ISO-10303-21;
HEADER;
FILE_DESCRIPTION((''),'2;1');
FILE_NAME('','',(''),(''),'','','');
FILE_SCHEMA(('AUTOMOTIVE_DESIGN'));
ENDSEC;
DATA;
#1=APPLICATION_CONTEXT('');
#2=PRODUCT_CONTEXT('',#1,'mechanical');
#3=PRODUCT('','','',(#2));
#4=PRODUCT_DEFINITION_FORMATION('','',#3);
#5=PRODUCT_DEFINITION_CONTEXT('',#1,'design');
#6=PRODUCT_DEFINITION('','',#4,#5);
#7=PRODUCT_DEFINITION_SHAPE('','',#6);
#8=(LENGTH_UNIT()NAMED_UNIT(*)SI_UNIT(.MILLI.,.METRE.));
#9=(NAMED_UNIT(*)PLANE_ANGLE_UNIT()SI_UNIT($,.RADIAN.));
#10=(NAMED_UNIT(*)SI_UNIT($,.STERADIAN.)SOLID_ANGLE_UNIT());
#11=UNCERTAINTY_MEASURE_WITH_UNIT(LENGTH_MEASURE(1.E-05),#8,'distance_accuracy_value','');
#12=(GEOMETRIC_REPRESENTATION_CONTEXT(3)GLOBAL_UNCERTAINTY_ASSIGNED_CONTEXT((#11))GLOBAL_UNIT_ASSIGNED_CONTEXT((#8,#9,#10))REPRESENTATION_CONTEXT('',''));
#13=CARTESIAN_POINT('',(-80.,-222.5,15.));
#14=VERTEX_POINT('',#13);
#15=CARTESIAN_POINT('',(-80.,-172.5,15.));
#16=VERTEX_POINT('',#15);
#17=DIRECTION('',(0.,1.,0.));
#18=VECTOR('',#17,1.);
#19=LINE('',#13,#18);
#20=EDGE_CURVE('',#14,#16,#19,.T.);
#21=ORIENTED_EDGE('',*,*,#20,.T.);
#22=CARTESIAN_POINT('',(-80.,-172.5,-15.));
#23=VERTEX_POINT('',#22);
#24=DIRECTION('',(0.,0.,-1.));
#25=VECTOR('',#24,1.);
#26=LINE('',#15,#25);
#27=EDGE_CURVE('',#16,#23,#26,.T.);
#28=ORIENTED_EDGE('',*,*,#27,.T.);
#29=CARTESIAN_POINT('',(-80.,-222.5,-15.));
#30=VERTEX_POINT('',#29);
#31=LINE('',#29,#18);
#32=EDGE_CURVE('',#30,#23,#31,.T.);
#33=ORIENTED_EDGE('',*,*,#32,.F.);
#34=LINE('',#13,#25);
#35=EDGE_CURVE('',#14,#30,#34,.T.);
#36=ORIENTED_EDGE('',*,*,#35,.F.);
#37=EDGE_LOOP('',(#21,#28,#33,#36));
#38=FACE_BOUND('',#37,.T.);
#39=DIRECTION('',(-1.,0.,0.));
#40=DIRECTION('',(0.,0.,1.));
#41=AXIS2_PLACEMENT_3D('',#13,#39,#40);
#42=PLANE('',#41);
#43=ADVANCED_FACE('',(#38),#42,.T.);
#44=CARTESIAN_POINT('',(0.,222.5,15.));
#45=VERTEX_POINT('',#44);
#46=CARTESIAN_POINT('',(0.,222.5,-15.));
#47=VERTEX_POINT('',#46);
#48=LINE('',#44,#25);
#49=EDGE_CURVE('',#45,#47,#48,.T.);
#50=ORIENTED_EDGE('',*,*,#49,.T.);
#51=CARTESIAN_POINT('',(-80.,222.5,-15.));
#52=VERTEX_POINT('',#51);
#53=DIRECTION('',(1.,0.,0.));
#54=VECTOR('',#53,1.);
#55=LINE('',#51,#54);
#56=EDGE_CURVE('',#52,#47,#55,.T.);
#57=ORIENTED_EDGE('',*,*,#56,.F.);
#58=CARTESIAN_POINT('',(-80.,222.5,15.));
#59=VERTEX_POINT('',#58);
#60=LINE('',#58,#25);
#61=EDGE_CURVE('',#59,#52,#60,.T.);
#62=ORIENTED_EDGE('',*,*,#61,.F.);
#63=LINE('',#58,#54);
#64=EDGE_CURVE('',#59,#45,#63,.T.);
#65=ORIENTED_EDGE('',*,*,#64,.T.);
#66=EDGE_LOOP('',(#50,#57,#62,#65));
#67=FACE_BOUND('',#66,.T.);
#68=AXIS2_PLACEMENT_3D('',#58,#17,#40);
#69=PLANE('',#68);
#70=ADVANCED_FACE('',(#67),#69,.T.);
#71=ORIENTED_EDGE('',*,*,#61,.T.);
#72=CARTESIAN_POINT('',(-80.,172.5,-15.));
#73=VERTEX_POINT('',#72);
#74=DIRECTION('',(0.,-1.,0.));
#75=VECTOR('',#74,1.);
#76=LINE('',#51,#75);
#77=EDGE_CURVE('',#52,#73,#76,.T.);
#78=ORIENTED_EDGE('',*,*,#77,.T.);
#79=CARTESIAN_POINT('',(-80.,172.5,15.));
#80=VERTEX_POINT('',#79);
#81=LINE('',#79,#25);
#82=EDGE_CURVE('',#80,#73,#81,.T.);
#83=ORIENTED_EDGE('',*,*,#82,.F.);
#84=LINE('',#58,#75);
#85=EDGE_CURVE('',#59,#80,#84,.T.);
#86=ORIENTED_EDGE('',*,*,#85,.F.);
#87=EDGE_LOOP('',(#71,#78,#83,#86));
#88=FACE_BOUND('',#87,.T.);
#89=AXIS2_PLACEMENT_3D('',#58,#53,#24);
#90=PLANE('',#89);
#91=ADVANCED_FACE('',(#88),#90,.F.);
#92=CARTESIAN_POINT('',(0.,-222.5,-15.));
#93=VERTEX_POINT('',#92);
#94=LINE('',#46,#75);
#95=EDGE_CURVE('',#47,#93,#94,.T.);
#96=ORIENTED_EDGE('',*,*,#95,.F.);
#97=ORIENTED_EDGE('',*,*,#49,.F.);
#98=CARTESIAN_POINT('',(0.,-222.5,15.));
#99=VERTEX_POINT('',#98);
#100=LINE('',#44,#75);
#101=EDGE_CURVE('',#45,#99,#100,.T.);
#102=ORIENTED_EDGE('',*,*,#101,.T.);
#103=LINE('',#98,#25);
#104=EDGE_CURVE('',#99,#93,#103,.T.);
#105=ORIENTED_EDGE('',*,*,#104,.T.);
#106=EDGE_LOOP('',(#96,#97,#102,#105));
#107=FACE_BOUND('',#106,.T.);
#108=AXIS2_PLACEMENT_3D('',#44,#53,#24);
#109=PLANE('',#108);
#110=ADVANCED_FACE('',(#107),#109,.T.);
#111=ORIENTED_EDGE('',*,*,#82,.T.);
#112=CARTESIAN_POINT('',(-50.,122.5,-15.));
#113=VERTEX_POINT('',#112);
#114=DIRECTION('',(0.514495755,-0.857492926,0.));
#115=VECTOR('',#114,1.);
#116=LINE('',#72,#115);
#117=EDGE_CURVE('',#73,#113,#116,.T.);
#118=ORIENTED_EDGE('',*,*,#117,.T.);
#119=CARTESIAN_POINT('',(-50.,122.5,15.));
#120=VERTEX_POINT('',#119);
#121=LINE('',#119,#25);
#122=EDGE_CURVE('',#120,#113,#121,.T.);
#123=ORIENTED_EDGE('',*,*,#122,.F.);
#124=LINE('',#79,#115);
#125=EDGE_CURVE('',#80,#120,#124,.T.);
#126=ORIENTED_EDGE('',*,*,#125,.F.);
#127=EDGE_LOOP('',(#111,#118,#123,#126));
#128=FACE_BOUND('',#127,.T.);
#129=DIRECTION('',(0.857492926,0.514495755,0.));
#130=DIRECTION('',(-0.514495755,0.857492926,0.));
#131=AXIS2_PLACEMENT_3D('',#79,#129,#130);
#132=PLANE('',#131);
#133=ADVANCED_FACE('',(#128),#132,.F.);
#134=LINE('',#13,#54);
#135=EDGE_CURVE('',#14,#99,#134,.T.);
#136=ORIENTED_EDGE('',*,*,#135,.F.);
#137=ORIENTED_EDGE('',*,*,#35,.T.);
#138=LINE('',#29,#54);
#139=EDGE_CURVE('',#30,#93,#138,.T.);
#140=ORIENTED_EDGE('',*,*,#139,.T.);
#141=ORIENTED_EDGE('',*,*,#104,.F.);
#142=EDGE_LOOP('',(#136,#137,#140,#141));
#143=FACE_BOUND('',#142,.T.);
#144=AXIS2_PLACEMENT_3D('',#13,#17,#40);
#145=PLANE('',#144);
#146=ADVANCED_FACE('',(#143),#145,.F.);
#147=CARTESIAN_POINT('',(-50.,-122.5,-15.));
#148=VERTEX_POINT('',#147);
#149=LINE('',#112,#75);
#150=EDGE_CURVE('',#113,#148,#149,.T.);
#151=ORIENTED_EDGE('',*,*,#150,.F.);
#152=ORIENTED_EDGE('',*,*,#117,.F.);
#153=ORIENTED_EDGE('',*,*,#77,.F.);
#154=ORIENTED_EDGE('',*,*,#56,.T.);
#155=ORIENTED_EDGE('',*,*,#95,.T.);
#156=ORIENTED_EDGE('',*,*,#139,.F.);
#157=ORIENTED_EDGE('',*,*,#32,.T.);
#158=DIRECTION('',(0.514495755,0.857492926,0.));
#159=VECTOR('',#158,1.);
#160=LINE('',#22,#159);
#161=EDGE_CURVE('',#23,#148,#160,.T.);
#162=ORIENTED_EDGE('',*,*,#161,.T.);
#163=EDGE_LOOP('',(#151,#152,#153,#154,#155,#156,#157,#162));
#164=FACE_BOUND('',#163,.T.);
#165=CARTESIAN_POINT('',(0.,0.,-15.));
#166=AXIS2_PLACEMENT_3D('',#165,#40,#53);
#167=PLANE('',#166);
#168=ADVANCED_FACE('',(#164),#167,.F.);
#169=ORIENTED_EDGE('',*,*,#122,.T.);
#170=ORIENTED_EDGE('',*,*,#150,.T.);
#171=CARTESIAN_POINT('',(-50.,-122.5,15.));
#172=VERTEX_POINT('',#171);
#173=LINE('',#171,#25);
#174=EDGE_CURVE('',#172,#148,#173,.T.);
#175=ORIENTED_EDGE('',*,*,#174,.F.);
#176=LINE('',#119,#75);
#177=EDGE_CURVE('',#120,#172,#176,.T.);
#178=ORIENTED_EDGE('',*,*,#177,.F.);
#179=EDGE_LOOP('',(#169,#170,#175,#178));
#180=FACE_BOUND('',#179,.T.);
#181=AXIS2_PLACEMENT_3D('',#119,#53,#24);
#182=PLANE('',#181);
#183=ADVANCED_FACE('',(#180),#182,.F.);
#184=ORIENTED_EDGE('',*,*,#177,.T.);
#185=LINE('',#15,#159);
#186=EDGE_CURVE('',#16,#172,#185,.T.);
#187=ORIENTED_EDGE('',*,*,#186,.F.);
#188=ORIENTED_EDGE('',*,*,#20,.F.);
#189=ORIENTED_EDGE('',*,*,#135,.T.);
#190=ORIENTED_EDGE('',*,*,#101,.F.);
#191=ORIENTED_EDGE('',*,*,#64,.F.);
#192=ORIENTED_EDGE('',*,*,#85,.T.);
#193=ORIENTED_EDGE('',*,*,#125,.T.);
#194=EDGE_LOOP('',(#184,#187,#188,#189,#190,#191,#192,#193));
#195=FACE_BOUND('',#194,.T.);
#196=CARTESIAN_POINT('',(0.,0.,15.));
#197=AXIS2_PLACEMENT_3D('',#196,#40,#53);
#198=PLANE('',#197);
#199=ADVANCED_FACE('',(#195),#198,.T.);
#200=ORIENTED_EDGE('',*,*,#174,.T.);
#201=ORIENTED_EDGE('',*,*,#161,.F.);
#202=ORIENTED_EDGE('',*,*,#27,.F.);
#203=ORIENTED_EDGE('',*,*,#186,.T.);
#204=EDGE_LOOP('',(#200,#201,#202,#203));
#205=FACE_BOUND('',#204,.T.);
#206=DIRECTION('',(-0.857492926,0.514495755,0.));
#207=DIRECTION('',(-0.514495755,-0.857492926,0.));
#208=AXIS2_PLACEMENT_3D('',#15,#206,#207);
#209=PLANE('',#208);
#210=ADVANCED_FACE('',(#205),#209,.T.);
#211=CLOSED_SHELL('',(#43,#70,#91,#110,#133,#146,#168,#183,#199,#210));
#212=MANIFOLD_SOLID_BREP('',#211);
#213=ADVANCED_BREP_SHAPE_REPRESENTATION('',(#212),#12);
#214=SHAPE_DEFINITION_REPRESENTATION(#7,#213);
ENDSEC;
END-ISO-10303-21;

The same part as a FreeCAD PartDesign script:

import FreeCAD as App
import Part
import Sketcher
Q = App.Units.Quantity

doc = App.newDocument("Part")
body = doc.addObject("PartDesign::Body", "Body")

# Sketch on XY plane
sketch1 = doc.addObject("Sketcher::SketchObject", "Sketch")
body.addObject(sketch1)
sketch1.AttachmentSupport = (doc.XY_Plane, [""])
sketch1.MapMode = "FlatFace"
sketch1.addGeometry(Part.LineSegment(App.Vector(0, 222.5, 0), App.Vector(-80, 222.5, 0)), False)
sketch1.addGeometry(Part.LineSegment(App.Vector(-80, 222.5, 0), App.Vector(-80, 172.5, 0)), False)
sketch1.addGeometry(Part.LineSegment(App.Vector(-80, 172.5, 0), App.Vector(-50, 122.5, 0)), False)
sketch1.addGeometry(Part.LineSegment(App.Vector(-50, 122.5, 0), App.Vector(-50, -122.5, 0)), False)
sketch1.addGeometry(Part.LineSegment(App.Vector(-50, -122.5, 0), App.Vector(-80, -172.5, 0)), False)
sketch1.addGeometry(Part.LineSegment(App.Vector(-80, -172.5, 0), App.Vector(-80, -222.5, 0)), False)
sketch1.addGeometry(Part.LineSegment(App.Vector(-80, -222.5, 0), App.Vector(0, -222.5, 0)), False)
sketch1.addGeometry(Part.LineSegment(App.Vector(0, -222.5, 0), App.Vector(0, 222.5, 0)), False)
sketch1.addConstraint(Sketcher.Constraint("Coincident", 0, 2, 1, 1))
sketch1.addConstraint(Sketcher.Constraint("Coincident", 1, 2, 2, 1))
sketch1.addConstraint(Sketcher.Constraint("Coincident", 2, 2, 3, 1))
sketch1.addConstraint(Sketcher.Constraint("Coincident", 3, 2, 4, 1))
sketch1.addConstraint(Sketcher.Constraint("Coincident", 4, 2, 5, 1))
sketch1.addConstraint(Sketcher.Constraint("Coincident", 5, 2, 6, 1))
sketch1.addConstraint(Sketcher.Constraint("Coincident", 6, 2, 7, 1))
sketch1.addConstraint(Sketcher.Constraint("Coincident", 7, 2, 0, 1))
sketch1.addConstraint(Sketcher.Constraint("Horizontal", 0))
sketch1.addConstraint(Sketcher.Constraint("Vertical", 1))
sketch1.addConstraint(Sketcher.Constraint("Vertical", 3))
sketch1.addConstraint(Sketcher.Constraint("Vertical", 5))
sketch1.addConstraint(Sketcher.Constraint("Horizontal", 6))
sketch1.addConstraint(Sketcher.Constraint("Vertical", 7))
sketch1.addConstraint(Sketcher.Constraint("Symmetric", 6, 2, 7, 2, -1, 1))
sketch1.addConstraint(Sketcher.Constraint("Symmetric", 1, 2, 4, 2, -1))
sketch1.addConstraint(Sketcher.Constraint("Equal", 2, 4))
sketch1.addConstraint(Sketcher.Constraint("DistanceX", 0, 2, 0, 1, Q("80 mm")))
sketch1.addConstraint(Sketcher.Constraint("DistanceY", 1, 2, 1, 1, Q("50 mm")))
sketch1.addConstraint(Sketcher.Constraint("DistanceY", 3, 2, 3, 1, Q("245 mm")))
sketch1.addConstraint(Sketcher.Constraint("DistanceY", 7, 1, 7, 2, Q("445 mm")))
sketch1.addConstraint(Sketcher.Constraint("DistanceX", 2, 2, -1, 1, Q("50 mm")))
pad1 = doc.addObject("PartDesign::Pad", "Pad")
body.addObject(pad1)
pad1.Profile = sketch1
pad1.Length = 30
pad1.Midplane = True

doc.recompute()
